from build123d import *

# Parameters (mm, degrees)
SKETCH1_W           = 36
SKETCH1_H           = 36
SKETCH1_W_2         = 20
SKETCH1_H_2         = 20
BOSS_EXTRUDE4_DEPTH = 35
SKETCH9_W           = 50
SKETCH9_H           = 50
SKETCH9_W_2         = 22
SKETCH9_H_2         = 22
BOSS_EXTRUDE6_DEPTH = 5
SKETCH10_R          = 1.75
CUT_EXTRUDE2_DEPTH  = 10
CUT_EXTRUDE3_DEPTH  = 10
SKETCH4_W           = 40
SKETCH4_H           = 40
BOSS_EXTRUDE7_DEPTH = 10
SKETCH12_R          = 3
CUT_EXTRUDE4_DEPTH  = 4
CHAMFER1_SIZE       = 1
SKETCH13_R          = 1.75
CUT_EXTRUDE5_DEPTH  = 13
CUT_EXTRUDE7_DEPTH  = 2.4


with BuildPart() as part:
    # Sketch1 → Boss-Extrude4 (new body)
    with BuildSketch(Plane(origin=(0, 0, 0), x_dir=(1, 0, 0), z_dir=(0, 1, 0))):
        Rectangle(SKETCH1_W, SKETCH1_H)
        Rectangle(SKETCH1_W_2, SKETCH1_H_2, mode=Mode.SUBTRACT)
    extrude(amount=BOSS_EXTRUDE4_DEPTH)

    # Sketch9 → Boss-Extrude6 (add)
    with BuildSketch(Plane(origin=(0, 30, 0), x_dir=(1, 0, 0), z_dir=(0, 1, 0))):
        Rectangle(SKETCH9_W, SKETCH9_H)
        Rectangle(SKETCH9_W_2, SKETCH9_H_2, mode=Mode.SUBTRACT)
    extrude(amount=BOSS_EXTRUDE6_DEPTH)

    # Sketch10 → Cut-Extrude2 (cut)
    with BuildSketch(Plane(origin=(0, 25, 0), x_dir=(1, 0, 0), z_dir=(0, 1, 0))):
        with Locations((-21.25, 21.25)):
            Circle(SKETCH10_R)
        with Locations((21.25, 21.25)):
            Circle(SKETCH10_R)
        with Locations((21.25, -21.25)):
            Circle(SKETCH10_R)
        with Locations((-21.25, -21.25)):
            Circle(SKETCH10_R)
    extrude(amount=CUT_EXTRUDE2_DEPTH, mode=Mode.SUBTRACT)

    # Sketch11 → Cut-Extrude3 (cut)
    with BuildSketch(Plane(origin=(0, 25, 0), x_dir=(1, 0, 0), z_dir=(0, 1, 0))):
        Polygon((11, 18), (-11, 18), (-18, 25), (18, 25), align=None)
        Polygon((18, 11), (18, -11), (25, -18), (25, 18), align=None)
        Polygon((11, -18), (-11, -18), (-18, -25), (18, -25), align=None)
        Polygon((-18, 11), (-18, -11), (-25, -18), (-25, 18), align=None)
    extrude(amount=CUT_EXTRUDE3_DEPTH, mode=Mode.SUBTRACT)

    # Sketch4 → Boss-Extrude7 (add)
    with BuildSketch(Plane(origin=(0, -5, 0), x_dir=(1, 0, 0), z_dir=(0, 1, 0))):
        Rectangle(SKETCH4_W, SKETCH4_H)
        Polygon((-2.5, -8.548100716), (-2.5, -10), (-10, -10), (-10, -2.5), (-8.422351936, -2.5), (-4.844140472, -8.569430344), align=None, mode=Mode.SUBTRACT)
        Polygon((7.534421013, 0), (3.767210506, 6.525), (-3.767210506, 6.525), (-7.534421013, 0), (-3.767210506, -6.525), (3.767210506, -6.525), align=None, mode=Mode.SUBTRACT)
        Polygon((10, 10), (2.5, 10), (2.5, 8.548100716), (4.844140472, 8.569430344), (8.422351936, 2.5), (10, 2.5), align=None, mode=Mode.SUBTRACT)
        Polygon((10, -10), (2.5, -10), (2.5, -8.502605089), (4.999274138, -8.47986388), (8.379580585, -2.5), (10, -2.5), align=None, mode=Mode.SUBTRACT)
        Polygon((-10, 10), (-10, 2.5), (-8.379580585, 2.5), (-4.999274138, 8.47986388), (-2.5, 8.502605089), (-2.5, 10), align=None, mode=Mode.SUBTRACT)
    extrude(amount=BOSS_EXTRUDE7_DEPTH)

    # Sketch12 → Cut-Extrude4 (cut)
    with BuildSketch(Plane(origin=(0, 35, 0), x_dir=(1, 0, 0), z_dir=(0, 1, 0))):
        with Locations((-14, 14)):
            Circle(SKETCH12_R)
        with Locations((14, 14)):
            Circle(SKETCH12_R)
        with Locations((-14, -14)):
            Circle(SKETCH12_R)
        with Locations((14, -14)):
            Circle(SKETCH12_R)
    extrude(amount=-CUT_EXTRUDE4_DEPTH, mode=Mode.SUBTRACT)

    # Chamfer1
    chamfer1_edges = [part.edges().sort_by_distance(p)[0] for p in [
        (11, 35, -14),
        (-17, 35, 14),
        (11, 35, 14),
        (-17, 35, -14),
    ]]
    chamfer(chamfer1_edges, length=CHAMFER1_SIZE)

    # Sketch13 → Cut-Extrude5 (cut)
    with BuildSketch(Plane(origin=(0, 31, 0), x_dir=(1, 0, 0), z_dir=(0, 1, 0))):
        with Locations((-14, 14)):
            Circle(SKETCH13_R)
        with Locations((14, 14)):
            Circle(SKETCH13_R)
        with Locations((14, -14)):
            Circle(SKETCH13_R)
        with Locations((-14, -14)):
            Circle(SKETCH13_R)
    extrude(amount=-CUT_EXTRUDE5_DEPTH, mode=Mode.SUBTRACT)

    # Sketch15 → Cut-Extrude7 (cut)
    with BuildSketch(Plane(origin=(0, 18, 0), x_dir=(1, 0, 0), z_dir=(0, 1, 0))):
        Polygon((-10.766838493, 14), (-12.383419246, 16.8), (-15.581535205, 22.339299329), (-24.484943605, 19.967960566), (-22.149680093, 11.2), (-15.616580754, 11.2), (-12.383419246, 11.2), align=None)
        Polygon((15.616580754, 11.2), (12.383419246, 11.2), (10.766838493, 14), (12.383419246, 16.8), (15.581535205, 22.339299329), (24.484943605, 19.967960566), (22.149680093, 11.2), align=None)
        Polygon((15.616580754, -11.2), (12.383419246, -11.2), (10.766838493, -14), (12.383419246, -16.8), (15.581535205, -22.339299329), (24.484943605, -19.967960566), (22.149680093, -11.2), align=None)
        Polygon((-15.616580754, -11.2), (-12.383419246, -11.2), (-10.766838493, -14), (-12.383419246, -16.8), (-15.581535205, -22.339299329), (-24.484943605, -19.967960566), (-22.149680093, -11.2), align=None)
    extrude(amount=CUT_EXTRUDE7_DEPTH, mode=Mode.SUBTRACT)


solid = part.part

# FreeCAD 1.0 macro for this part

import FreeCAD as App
import Part
import Sketcher

V = App.Vector
Q = App.Units.Quantity


def edges_at(feature, points):
    """Names of the edges that pass closest to the given points."""
    edges = feature.Shape.Edges
    near = lambda p: min(range(len(edges)), key=lambda i: edges[i].distToShape(Part.Vertex(*p))[0])
    return sorted({f"Edge{near(p) + 1}" for p in points})


def add_polygon(sketch, points):
    """Adds a closed chain of lines whose ends are joined by coincident constraints."""
    first, n = sketch.GeometryCount, len(points)
    for a, b in zip(points, points[1:] + points[:1]):
        sketch.addGeometry(Part.LineSegment(App.Vector(*a, 0), App.Vector(*b, 0)), False)
    for i in range(n):
        sketch.addConstraint(Sketcher.Constraint("Coincident", first + i, 2, first + (i + 1) % n, 1))

doc = App.newDocument("Part")
body = doc.addObject("PartDesign::Body", "Body")

sketch1 = body.newObject("Sketcher::SketchObject", "Sketch")
sketch1.AttachmentSupport = (doc.getObject("XZ_Plane"), [""])
sketch1.MapMode = "FlatFace"
add_polygon(sketch1, [(-18, -18), (-18, 18), (18, 18), (18, -18)])
add_polygon(sketch1, [(10, 10), (-10, 10), (-10, -10), (10, -10)])
sketch1.addConstraint([
    Sketcher.Constraint("Vertical", 0),
    Sketcher.Constraint("Horizontal", 1),
    Sketcher.Constraint("Vertical", 2),
    Sketcher.Constraint("Horizontal", 3),
    Sketcher.Constraint("Horizontal", 4),
    Sketcher.Constraint("Vertical", 5),
    Sketcher.Constraint("Horizontal", 6),
    Sketcher.Constraint("Vertical", 7),
    Sketcher.Constraint("Symmetric", 0, 2, 2, 2, -1, 1),
    Sketcher.Constraint("Symmetric", 4, 2, 6, 2, -1, 1),
    Sketcher.Constraint("Equal", 3, 0),
    Sketcher.Constraint("Equal", 6, 5),
    Sketcher.Constraint("DistanceX", 1, 1, 1, 2, 36.0),
    Sketcher.Constraint("DistanceX", 4, 2, 4, 1, 20.0),
])
pad1 = body.newObject("PartDesign::Pad", "Pad")
pad1.Profile = sketch1
pad1.Length = 35
pad1.Reversed = True

sketch2 = body.newObject("Sketcher::SketchObject", "Sketch001")
sketch2.AttachmentSupport = (doc.getObject("XZ_Plane"), [""])
sketch2.MapMode = "FlatFace"
sketch2.AttachmentOffset = App.Placement(V(0, 0, -30), App.Rotation())
add_polygon(sketch2, [(-25, -25), (-25, 25), (25, 25), (25, -25)])
add_polygon(sketch2, [(11, 11), (-11, 11), (-11, -11), (11, -11)])
sketch2.addConstraint([
    Sketcher.Constraint("Vertical", 0),
    Sketcher.Constraint("Horizontal", 1),
    Sketcher.Constraint("Vertical", 2),
    Sketcher.Constraint("Horizontal", 3),
    Sketcher.Constraint("Horizontal", 4),
    Sketcher.Constraint("Vertical", 5),
    Sketcher.Constraint("Horizontal", 6),
    Sketcher.Constraint("Vertical", 7),
    Sketcher.Constraint("Symmetric", 0, 2, 2, 2, -1, 1),
    Sketcher.Constraint("Symmetric", 4, 2, 6, 2, -1, 1),
    Sketcher.Constraint("Equal", 3, 0),
    Sketcher.Constraint("Equal", 6, 5),
    Sketcher.Constraint("DistanceX", 1, 1, 1, 2, 50.0),
    Sketcher.Constraint("DistanceX", 4, 2, 4, 1, 22.0),
])
pad2 = body.newObject("PartDesign::Pad", "Pad001")
pad2.Profile = sketch2
pad2.Length = 5
pad2.Reversed = True

sketch3 = body.newObject("Sketcher::SketchObject", "Sketch002")
sketch3.AttachmentSupport = (doc.getObject("XZ_Plane"), [""])
sketch3.MapMode = "FlatFace"
sketch3.AttachmentOffset = App.Placement(V(0, 0, -25), App.Rotation())
sketch3.addGeometry([
    Part.Circle(V(-21.2, -21.2, 0), V(0, 0, 1), 1.8),
    Part.Circle(V(21.2, -21.2, 0), V(0, 0, 1), 1.8),
    Part.Circle(V(21.2, 21.2, 0), V(0, 0, 1), 1.8),
    Part.Circle(V(-21.2, 21.2, 0), V(0, 0, 1), 1.8),
], False)
sketch3.addConstraint([
    Sketcher.Constraint("Equal", 0, 1),
    Sketcher.Constraint("Equal", 1, 2),
    Sketcher.Constraint("Equal", 2, 3),
    Sketcher.Constraint("Symmetric", 0, 3, 2, 3, -1, 1),
    Sketcher.Constraint("Symmetric", 1, 3, 3, 3, -1, 1),
    Sketcher.Constraint("Symmetric", 0, 3, 1, 3, -2),
    Sketcher.Constraint("Diameter", 0, 3.5),
    Sketcher.Constraint("DistanceX", 0, 3, 1, 3, 42.5),
    Sketcher.Constraint("DistanceY", 1, 3, 2, 3, 42.5),
])
pocket1 = body.newObject("PartDesign::Pocket", "Pocket")
pocket1.Profile = sketch3
pocket1.Length = 10

sketch4 = body.newObject("Sketcher::SketchObject", "Sketch003")
sketch4.AttachmentSupport = (doc.getObject("XZ_Plane"), [""])
sketch4.MapMode = "FlatFace"
sketch4.AttachmentOffset = App.Placement(V(0, 0, -25), App.Rotation())
add_polygon(sketch4, [(-11, -18), (11, -18), (18, -25), (-18, -25)])
add_polygon(sketch4, [(18, -11), (18, 11), (25, 18), (25, -18)])
add_polygon(sketch4, [(11, 18), (-11, 18), (-18, 25), (18, 25)])
add_polygon(sketch4, [(-18, 11), (-18, -11), (-25, -18), (-25, 18)])
sketch4.addConstraint([
    Sketcher.Constraint("Horizontal", 0),
    Sketcher.Constraint("Horizontal", 2),
    Sketcher.Constraint("Vertical", 4),
    Sketcher.Constraint("Vertical", 6),
    Sketcher.Constraint("Horizontal", 8),
    Sketcher.Constraint("Horizontal", 10),
    Sketcher.Constraint("Vertical", 12),
    Sketcher.Constraint("Vertical", 14),
    Sketcher.Constraint("Symmetric", 0, 2, 8, 2, -1, 1),
    Sketcher.Constraint("Symmetric", 1, 2, 9, 2, -1, 1),
    Sketcher.Constraint("Symmetric", 4, 2, 12, 2, -1, 1),
    Sketcher.Constraint("Symmetric", 5, 2, 13, 2, -1, 1),
    Sketcher.Constraint("Perpendicular", 1, 3),
    Sketcher.Constraint("Parallel", 3, 5),
    Sketcher.Constraint("Perpendicular", 5, 7),
    Sketcher.Constraint("Perpendicular", 9, 11),
    Sketcher.Constraint("Perpendicular", 13, 15),
    Sketcher.Constraint("Horizontal", 3, 2, 6, 2),
    Sketcher.Constraint("Horizontal", 5, 2, 8, 2),
    Sketcher.Constraint("Horizontal", 7, 2, 12, 2),
    Sketcher.Constraint("Horizontal", 11, 2, 14, 2),
    Sketcher.Constraint("Vertical", 1, 2, 4, 2),
    Sketcher.Constraint("Vertical", 3, 2, 8, 2),
    Sketcher.Constraint("Vertical", 7, 2, 10, 2),
    Sketcher.Constraint("Equal", 8, 4),
    Sketcher.Constraint("Equal", 10, 6),
    Sketcher.Constraint("DistanceX", 0, 1, 0, 2, 22.0),
    Sketcher.Constraint("DistanceX", 2, 2, 2, 1, 36.0),
])
pocket2 = body.newObject("PartDesign::Pocket", "Pocket001")
pocket2.Profile = sketch4
pocket2.Length = 10

sketch5 = body.newObject("Sketcher::SketchObject", "Sketch004")
sketch5.AttachmentSupport = (doc.getObject("XZ_Plane"), [""])
sketch5.MapMode = "FlatFace"
sketch5.AttachmentOffset = App.Placement(V(0, 0, 5), App.Rotation())
add_polygon(sketch5, [(-20, -20), (-20, 20), (20, 20), (20, -20)])
add_polygon(sketch5, [(-4.8, 8.6), (-2.5, 8.5), (-2.5, 10), (-10, 10), (-10, 2.5), (-8.4, 2.5)])
add_polygon(sketch5, [(10, 2.5), (10, 10), (2.5, 10), (2.5, 8.5), (5, 8.5), (8.4, 2.5)])
add_polygon(sketch5, [(-10, -2.5), (-10, -10), (-2.5, -10), (-2.5, -8.5), (-5, -8.5), (-8.4, -2.5)])
add_polygon(sketch5, [(3.8, -6.5), (7.5, 0), (3.8, 6.5), (-3.8, 6.5), (-7.5, 0), (-3.8, -6.5)])
add_polygon(sketch5, [(2.5, -10), (10, -10), (10, -2.5), (8.4, -2.5), (4.8, -8.6), (2.5, -8.5)])
sketch5.addConstraint([
    Sketcher.Constraint("Vertical", 0),
    Sketcher.Constraint("Horizontal", 1),
    Sketcher.Constraint("Vertical", 2),
    Sketcher.Constraint("Horizontal", 3),
    Sketcher.Constraint("Vertical", 5),
    Sketcher.Constraint("Horizontal", 6),
    Sketcher.Constraint("Vertical", 7),
    Sketcher.Constraint("Horizontal", 8),
    Sketcher.Constraint("Vertical", 10),
    Sketcher.Constraint("Horizontal", 11),
    Sketcher.Constraint("Vertical", 12),
    Sketcher.Constraint("Horizontal", 15),
    Sketcher.Constraint("Vertical", 16),
    Sketcher.Constraint("Horizontal", 17),
    Sketcher.Constraint("Vertical", 18),
    Sketcher.Constraint("Horizontal", 21),
    Sketcher.Constraint("Horizontal", 24),
    Sketcher.Constraint("Horizontal", 27),
    Sketcher.Constraint("Horizontal", 28),
    Sketcher.Constraint("Vertical", 29),
    Sketcher.Constraint("Horizontal", 30),
    Sketcher.Constraint("Vertical", 33),
    Sketcher.Constraint("Symmetric", 0, 2, 2, 2, -1, 1),
    Sketcher.Constraint("Symmetric", 10, 2, 16, 2, -1, 1),
    Sketcher.Constraint("Symmetric", 12, 2, 18, 2, -1, 1),
    Sketcher.Constraint("Symmetric", 13, 2, 19, 2, -1, 1),
    Sketcher.Constraint("Symmetric", 14, 2, 20, 2, -1, 1),
    Sketcher.Constraint("Symmetric", 22, 2, 25, 2, -1, 1),
    Sketcher.Constraint("Symmetric", 23, 2, 26, 2, -1, 1),
    Sketcher.Constraint("Symmetric", 6, 2, 28, 2, -1, 1),
    Sketcher.Constraint("Symmetric", 8, 2, 30, 2, -1, 1),
    Sketcher.Constraint("Symmetric", 9, 2, 31, 2, -1, 1),
    Sketcher.Constraint("Symmetric", 4, 2, 32, 2, -1, 1),
    Sketcher.Constraint("Symmetric", 6, 2, 10, 2, -2),
    Sketcher.Constraint("PointOnObject", 22, 2, -1),
    Sketcher.Constraint("Parallel", 4, 13),
    Sketcher.Constraint("Parallel", 22, 25),
    Sketcher.Constraint("Horizontal", 8, 2, 14, 2),
    Sketcher.Constraint("Vertical", 5, 2, 17, 2),
    Sketcher.Constraint("Vertical", 24, 2, 26, 2),
    Sketcher.Constraint("Equal", 3, 0),
    Sketcher.Constraint("Equal", 28, 7),
    Sketcher.Constraint("DistanceX", 1, 1, 1, 2, 40.0),
    Sketcher.Constraint("Angle", 22, Q("60 deg")),
    Sketcher.Constraint("DistanceX", 6, 2, 6, 1, 7.5),
    Sketcher.Constraint("DistanceY", -1, 1, 5, 2, 10.0),
    Sketcher.Constraint("DistanceX", 6, 2, -1, 1, 10.0),
    Sketcher.Constraint("DistanceY", 5, 1, 5, 2, 1.451899),
    Sketcher.Constraint("DistanceY", -1, 1, 23, 2, 6.525),
    Sketcher.Constraint("DistanceX", 8, 1, 8, 2, 1.577648),
    Sketcher.Constraint("DistanceX", 15, 1, 15, 2, 1.620419),
    Sketcher.Constraint("DistanceX", 24, 2, 24, 1, 7.534421),
    Sketcher.Constraint("Distance", 9, 7.045678),
    Sketcher.Constraint("Distance", 14, 6.869152),
    Sketcher.Constraint("DistanceY", 12, 2, 12, 1, 1.497395),
    Sketcher.Constraint("DistanceX", 9, 2, -1, 1, 4.84414),
])
pad3 = body.newObject("PartDesign::Pad", "Pad002")
pad3.Profile = sketch5
pad3.Length = 10
pad3.Reversed = True

sketch6 = body.newObject("Sketcher::SketchObject", "Sketch005")
sketch6.AttachmentSupport = (doc.getObject("XZ_Plane"), [""])
sketch6.MapMode = "FlatFace"
sketch6.AttachmentOffset = App.Placement(V(0, 0, -35), App.Rotation())
sketch6.addGeometry([
    Part.Circle(V(-14, -14, 0), V(0, 0, 1), 3),
    Part.Circle(V(14, -14, 0), V(0, 0, 1), 3),
    Part.Circle(V(-14, 14, 0), V(0, 0, 1), 3),
    Part.Circle(V(14, 14, 0), V(0, 0, 1), 3),
], False)
sketch6.addConstraint([
    Sketcher.Constraint("Equal", 0, 1),
    Sketcher.Constraint("Equal", 1, 2),
    Sketcher.Constraint("Equal", 2, 3),
    Sketcher.Constraint("Symmetric", 1, 3, 2, 3, -1, 1),
    Sketcher.Constraint("Symmetric", 0, 3, 3, 3, -1, 1),
    Sketcher.Constraint("Symmetric", 0, 3, 1, 3, -2),
    Sketcher.Constraint("Diameter", 0, 6.0),
    Sketcher.Constraint("DistanceX", 0, 3, -1, 1, 14.0),
    Sketcher.Constraint("DistanceY", 0, 3, -1, 1, 14.0),
])
pocket3 = body.newObject("PartDesign::Pocket", "Pocket002")
pocket3.Profile = sketch6
pocket3.Length = 4
pocket3.Reversed = True
doc.recompute()

chamfer = body.newObject("PartDesign::Chamfer", "Chamfer")
chamfer.Base = (pocket3, edges_at(pocket3, [
    (11, 35, -14),
    (-17, 35, 14),
    (11, 35, 14),
    (-17, 35, -14),
]))
chamfer.Size = 1

sketch7 = body.newObject("Sketcher::SketchObject", "Sketch006")
sketch7.AttachmentSupport = (doc.getObject("XZ_Plane"), [""])
sketch7.MapMode = "FlatFace"
sketch7.AttachmentOffset = App.Placement(V(0, 0, -31), App.Rotation())
sketch7.addGeometry([
    Part.Circle(V(-14, -14, 0), V(0, 0, 1), 1.8),
    Part.Circle(V(14, -14, 0), V(0, 0, 1), 1.8),
    Part.Circle(V(14, 14, 0), V(0, 0, 1), 1.8),
    Part.Circle(V(-14, 14, 0), V(0, 0, 1), 1.8),
], False)
sketch7.addConstraint([
    Sketcher.Constraint("Equal", 0, 1),
    Sketcher.Constraint("Equal", 1, 2),
    Sketcher.Constraint("Equal", 2, 3),
    Sketcher.Constraint("Symmetric", 0, 3, 2, 3, -1, 1),
    Sketcher.Constraint("Symmetric", 1, 3, 3, 3, -1, 1),
    Sketcher.Constraint("Symmetric", 0, 3, 1, 3, -2),
    Sketcher.Constraint("Diameter", 0, 3.5),
    Sketcher.Constraint("DistanceX", 0, 3, -1, 1, 14.0),
    Sketcher.Constraint("DistanceY", 0, 3, -1, 1, 14.0),
])
pocket4 = body.newObject("PartDesign::Pocket", "Pocket003")
pocket4.Profile = sketch7
pocket4.Length = 13
pocket4.Reversed = True

sketch8 = body.newObject("Sketcher::SketchObject", "Sketch007")
sketch8.AttachmentSupport = (doc.getObject("XZ_Plane"), [""])
sketch8.MapMode = "FlatFace"
sketch8.AttachmentOffset = App.Placement(V(0, 0, -18), App.Rotation())
add_polygon(sketch8, [(-10.8, -14), (-12.4, -16.8), (-15.6, -22.3), (-24.5, -20), (-22.1, -11.2), (-12.4, -11.2)])
add_polygon(sketch8, [(12.4, -11.2), (22.1, -11.2), (24.5, -20), (15.6, -22.3), (12.4, -16.8), (10.8, -14)])
add_polygon(sketch8, [(12.4, 11.2), (10.8, 14), (12.4, 16.8), (15.6, 22.3), (24.5, 20), (22.1, 11.2)])
add_polygon(sketch8, [(-12.4, 11.2), (-22.1, 11.2), (-24.5, 20), (-15.6, 22.3), (-12.4, 16.8), (-10.8, 14)])
sketch8.addConstraint([
    Sketcher.Constraint("Horizontal", 4),
    Sketcher.Constraint("Horizontal", 6),
    Sketcher.Constraint("Horizontal", 17),
    Sketcher.Constraint("Horizontal", 18),
    Sketcher.Constraint("Symmetric", 5, 2, 12, 2, -1, 1),
    Sketcher.Constraint("Symmetric", 0, 2, 13, 2, -1, 1),
    Sketcher.Constraint("Symmetric", 1, 2, 14, 2, -1, 1),
    Sketcher.Constraint("Symmetric", 2, 2, 15, 2, -1, 1),
    Sketcher.Constraint("Symmetric", 3, 2, 16, 2, -1, 1),
    Sketcher.Constraint("Symmetric", 6, 2, 18, 2, -1, 1),
    Sketcher.Constraint("Symmetric", 7, 2, 19, 2, -1, 1),
    Sketcher.Constraint("Symmetric", 8, 2, 20, 2, -1, 1),
    Sketcher.Constraint("Symmetric", 9, 2, 21, 2, -1, 1),
    Sketcher.Constraint("Symmetric", 10, 2, 22, 2, -1, 1),
    Sketcher.Constraint("Symmetric", 3, 2, 6, 2, -2),
    Sketcher.Constraint("Symmetric", 2, 2, 7, 2, -2),
    Sketcher.Constraint("Symmetric", 1, 2, 8, 2, -2),
    Sketcher.Constraint("Symmetric", 0, 2, 9, 2, -2),
    Sketcher.Constraint("Symmetric", 5, 2, 10, 2, -2),
    Sketcher.Constraint("Parallel", 0, 1),
    Sketcher.Constraint("Perpendicular", 2, 3),
    Sketcher.Constraint("Parallel", 5, 9),
    Sketcher.Constraint("Parallel", 1, 11),
    Sketcher.Constraint("Parallel", 10, 12),
    Sketcher.Constraint("Parallel", 14, 23),
    Sketcher.Constraint("Vertical", 0, 2, 4, 2),
    Sketcher.Constraint("Angle", 0, Q("-120 deg")),
    Sketcher.Constraint("DistanceY", 5, 2, -1, 1, 14.0),
    Sketcher.Constraint("DistanceY", 0, 2, -1, 1, 16.8),
    Sketcher.Constraint("DistanceX", 4, 1, 4, 2, 9.766261),
    Sketcher.Constraint("DistanceY", 1, 2, -1, 1, 22.339299),
    Sketcher.Constraint("DistanceX", 4, 2, 6, 2, 34.533099),
    Sketcher.Constraint("Distance", 2, 9.21379),
])
pocket5 = body.newObject("PartDesign::Pocket", "Pocket004")
pocket5.Profile = sketch8
pocket5.Length = 2.4

doc.recompute()
